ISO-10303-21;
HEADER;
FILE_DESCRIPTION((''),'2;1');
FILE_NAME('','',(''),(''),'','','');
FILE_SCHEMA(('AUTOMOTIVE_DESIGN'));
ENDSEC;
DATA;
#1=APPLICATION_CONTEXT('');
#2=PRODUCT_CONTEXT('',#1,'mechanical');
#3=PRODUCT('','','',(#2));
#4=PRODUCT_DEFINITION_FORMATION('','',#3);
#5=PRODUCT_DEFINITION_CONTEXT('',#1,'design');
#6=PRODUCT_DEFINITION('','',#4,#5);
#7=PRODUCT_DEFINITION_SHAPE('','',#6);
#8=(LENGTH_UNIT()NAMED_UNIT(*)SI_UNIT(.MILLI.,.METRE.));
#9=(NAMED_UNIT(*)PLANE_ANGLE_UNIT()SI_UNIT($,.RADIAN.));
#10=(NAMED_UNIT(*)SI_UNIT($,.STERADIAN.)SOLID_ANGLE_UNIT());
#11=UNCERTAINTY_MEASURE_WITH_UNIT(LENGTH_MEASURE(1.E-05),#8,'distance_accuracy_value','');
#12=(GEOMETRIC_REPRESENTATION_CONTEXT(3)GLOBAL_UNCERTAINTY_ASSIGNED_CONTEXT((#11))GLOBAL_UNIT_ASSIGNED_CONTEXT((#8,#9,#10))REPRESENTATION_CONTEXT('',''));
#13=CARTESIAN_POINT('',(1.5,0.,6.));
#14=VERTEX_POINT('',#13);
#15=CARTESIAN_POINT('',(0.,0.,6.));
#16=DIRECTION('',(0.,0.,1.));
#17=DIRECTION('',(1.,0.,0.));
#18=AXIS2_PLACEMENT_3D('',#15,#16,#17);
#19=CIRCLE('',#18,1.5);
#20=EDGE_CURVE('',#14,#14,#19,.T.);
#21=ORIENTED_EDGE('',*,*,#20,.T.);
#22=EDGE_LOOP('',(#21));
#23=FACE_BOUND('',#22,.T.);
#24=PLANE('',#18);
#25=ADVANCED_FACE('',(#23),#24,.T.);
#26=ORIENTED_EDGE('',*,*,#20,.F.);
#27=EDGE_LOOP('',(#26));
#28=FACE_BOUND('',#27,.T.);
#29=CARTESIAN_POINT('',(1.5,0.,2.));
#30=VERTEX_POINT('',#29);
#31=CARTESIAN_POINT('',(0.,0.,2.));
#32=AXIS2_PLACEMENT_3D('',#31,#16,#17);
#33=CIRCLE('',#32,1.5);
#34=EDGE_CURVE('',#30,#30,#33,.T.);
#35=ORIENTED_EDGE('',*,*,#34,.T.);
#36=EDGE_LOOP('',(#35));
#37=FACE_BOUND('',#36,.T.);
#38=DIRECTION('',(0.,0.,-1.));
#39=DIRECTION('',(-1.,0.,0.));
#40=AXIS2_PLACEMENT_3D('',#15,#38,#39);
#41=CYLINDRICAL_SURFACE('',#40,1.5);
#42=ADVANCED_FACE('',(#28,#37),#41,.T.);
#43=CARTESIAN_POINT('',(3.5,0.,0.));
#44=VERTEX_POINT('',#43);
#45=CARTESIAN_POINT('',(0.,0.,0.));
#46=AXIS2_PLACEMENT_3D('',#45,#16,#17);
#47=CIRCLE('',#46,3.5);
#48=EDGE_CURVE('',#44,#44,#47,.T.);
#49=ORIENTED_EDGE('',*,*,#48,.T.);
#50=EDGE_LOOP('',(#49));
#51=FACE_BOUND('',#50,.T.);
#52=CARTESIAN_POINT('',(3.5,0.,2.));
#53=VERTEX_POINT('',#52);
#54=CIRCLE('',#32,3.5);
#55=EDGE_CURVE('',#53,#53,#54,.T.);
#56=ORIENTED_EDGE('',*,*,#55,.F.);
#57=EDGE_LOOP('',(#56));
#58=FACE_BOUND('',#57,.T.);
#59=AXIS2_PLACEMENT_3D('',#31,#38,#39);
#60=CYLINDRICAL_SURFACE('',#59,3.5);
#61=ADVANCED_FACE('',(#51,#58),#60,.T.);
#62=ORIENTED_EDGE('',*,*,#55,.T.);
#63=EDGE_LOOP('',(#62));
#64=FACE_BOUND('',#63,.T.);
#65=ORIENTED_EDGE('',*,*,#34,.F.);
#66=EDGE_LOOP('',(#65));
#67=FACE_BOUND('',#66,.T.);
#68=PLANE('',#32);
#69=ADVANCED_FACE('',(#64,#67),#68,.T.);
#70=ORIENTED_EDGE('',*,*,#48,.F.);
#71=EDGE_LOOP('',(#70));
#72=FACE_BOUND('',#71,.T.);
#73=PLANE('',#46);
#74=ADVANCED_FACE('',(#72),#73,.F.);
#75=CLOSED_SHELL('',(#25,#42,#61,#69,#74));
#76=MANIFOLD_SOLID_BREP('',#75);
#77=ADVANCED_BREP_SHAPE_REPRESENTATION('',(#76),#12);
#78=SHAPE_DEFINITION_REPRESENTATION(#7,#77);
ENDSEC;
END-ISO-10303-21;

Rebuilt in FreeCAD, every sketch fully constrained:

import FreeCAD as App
import Part
import Sketcher

V = App.Vector

doc = App.newDocument("Part")
body = doc.addObject("PartDesign::Body", "Body")

sketch1 = body.newObject("Sketcher::SketchObject", "Sketch")
sketch1.AttachmentSupport = (doc.getObject("XY_Plane"), [""])
sketch1.MapMode = "FlatFace"
sketch1.addGeometry(Part.Circle(V(0, 0, 0), V(0, 0, 1), 3.5), False)
sketch1.addConstraint([
    Sketcher.Constraint("Coincident", 0, 3, -1, 1),
    Sketcher.Constraint("Diameter", 0, 7.0),
])
pad1 = body.newObject("PartDesign::Pad", "Pad")
pad1.Profile = sketch1
pad1.Length = 2

sketch2 = body.newObject("Sketcher::SketchObject", "Sketch001")
sketch2.AttachmentSupport = (doc.getObject("XY_Plane"), [""])
sketch2.MapMode = "FlatFace"
sketch2.AttachmentOffset = App.Placement(V(0, 0, 2), App.Rotation())
sketch2.addGeometry(Part.Circle(V(0, 0, 0), V(0, 0, 1), 1.5), False)
sketch2.addConstraint([
    Sketcher.Constraint("Coincident", 0, 3, -1, 1),
    Sketcher.Constraint("Diameter", 0, 3.0),
])
pad2 = body.newObject("PartDesign::Pad", "Pad001")
pad2.Profile = sketch2
pad2.Length = 4

doc.recompute()
